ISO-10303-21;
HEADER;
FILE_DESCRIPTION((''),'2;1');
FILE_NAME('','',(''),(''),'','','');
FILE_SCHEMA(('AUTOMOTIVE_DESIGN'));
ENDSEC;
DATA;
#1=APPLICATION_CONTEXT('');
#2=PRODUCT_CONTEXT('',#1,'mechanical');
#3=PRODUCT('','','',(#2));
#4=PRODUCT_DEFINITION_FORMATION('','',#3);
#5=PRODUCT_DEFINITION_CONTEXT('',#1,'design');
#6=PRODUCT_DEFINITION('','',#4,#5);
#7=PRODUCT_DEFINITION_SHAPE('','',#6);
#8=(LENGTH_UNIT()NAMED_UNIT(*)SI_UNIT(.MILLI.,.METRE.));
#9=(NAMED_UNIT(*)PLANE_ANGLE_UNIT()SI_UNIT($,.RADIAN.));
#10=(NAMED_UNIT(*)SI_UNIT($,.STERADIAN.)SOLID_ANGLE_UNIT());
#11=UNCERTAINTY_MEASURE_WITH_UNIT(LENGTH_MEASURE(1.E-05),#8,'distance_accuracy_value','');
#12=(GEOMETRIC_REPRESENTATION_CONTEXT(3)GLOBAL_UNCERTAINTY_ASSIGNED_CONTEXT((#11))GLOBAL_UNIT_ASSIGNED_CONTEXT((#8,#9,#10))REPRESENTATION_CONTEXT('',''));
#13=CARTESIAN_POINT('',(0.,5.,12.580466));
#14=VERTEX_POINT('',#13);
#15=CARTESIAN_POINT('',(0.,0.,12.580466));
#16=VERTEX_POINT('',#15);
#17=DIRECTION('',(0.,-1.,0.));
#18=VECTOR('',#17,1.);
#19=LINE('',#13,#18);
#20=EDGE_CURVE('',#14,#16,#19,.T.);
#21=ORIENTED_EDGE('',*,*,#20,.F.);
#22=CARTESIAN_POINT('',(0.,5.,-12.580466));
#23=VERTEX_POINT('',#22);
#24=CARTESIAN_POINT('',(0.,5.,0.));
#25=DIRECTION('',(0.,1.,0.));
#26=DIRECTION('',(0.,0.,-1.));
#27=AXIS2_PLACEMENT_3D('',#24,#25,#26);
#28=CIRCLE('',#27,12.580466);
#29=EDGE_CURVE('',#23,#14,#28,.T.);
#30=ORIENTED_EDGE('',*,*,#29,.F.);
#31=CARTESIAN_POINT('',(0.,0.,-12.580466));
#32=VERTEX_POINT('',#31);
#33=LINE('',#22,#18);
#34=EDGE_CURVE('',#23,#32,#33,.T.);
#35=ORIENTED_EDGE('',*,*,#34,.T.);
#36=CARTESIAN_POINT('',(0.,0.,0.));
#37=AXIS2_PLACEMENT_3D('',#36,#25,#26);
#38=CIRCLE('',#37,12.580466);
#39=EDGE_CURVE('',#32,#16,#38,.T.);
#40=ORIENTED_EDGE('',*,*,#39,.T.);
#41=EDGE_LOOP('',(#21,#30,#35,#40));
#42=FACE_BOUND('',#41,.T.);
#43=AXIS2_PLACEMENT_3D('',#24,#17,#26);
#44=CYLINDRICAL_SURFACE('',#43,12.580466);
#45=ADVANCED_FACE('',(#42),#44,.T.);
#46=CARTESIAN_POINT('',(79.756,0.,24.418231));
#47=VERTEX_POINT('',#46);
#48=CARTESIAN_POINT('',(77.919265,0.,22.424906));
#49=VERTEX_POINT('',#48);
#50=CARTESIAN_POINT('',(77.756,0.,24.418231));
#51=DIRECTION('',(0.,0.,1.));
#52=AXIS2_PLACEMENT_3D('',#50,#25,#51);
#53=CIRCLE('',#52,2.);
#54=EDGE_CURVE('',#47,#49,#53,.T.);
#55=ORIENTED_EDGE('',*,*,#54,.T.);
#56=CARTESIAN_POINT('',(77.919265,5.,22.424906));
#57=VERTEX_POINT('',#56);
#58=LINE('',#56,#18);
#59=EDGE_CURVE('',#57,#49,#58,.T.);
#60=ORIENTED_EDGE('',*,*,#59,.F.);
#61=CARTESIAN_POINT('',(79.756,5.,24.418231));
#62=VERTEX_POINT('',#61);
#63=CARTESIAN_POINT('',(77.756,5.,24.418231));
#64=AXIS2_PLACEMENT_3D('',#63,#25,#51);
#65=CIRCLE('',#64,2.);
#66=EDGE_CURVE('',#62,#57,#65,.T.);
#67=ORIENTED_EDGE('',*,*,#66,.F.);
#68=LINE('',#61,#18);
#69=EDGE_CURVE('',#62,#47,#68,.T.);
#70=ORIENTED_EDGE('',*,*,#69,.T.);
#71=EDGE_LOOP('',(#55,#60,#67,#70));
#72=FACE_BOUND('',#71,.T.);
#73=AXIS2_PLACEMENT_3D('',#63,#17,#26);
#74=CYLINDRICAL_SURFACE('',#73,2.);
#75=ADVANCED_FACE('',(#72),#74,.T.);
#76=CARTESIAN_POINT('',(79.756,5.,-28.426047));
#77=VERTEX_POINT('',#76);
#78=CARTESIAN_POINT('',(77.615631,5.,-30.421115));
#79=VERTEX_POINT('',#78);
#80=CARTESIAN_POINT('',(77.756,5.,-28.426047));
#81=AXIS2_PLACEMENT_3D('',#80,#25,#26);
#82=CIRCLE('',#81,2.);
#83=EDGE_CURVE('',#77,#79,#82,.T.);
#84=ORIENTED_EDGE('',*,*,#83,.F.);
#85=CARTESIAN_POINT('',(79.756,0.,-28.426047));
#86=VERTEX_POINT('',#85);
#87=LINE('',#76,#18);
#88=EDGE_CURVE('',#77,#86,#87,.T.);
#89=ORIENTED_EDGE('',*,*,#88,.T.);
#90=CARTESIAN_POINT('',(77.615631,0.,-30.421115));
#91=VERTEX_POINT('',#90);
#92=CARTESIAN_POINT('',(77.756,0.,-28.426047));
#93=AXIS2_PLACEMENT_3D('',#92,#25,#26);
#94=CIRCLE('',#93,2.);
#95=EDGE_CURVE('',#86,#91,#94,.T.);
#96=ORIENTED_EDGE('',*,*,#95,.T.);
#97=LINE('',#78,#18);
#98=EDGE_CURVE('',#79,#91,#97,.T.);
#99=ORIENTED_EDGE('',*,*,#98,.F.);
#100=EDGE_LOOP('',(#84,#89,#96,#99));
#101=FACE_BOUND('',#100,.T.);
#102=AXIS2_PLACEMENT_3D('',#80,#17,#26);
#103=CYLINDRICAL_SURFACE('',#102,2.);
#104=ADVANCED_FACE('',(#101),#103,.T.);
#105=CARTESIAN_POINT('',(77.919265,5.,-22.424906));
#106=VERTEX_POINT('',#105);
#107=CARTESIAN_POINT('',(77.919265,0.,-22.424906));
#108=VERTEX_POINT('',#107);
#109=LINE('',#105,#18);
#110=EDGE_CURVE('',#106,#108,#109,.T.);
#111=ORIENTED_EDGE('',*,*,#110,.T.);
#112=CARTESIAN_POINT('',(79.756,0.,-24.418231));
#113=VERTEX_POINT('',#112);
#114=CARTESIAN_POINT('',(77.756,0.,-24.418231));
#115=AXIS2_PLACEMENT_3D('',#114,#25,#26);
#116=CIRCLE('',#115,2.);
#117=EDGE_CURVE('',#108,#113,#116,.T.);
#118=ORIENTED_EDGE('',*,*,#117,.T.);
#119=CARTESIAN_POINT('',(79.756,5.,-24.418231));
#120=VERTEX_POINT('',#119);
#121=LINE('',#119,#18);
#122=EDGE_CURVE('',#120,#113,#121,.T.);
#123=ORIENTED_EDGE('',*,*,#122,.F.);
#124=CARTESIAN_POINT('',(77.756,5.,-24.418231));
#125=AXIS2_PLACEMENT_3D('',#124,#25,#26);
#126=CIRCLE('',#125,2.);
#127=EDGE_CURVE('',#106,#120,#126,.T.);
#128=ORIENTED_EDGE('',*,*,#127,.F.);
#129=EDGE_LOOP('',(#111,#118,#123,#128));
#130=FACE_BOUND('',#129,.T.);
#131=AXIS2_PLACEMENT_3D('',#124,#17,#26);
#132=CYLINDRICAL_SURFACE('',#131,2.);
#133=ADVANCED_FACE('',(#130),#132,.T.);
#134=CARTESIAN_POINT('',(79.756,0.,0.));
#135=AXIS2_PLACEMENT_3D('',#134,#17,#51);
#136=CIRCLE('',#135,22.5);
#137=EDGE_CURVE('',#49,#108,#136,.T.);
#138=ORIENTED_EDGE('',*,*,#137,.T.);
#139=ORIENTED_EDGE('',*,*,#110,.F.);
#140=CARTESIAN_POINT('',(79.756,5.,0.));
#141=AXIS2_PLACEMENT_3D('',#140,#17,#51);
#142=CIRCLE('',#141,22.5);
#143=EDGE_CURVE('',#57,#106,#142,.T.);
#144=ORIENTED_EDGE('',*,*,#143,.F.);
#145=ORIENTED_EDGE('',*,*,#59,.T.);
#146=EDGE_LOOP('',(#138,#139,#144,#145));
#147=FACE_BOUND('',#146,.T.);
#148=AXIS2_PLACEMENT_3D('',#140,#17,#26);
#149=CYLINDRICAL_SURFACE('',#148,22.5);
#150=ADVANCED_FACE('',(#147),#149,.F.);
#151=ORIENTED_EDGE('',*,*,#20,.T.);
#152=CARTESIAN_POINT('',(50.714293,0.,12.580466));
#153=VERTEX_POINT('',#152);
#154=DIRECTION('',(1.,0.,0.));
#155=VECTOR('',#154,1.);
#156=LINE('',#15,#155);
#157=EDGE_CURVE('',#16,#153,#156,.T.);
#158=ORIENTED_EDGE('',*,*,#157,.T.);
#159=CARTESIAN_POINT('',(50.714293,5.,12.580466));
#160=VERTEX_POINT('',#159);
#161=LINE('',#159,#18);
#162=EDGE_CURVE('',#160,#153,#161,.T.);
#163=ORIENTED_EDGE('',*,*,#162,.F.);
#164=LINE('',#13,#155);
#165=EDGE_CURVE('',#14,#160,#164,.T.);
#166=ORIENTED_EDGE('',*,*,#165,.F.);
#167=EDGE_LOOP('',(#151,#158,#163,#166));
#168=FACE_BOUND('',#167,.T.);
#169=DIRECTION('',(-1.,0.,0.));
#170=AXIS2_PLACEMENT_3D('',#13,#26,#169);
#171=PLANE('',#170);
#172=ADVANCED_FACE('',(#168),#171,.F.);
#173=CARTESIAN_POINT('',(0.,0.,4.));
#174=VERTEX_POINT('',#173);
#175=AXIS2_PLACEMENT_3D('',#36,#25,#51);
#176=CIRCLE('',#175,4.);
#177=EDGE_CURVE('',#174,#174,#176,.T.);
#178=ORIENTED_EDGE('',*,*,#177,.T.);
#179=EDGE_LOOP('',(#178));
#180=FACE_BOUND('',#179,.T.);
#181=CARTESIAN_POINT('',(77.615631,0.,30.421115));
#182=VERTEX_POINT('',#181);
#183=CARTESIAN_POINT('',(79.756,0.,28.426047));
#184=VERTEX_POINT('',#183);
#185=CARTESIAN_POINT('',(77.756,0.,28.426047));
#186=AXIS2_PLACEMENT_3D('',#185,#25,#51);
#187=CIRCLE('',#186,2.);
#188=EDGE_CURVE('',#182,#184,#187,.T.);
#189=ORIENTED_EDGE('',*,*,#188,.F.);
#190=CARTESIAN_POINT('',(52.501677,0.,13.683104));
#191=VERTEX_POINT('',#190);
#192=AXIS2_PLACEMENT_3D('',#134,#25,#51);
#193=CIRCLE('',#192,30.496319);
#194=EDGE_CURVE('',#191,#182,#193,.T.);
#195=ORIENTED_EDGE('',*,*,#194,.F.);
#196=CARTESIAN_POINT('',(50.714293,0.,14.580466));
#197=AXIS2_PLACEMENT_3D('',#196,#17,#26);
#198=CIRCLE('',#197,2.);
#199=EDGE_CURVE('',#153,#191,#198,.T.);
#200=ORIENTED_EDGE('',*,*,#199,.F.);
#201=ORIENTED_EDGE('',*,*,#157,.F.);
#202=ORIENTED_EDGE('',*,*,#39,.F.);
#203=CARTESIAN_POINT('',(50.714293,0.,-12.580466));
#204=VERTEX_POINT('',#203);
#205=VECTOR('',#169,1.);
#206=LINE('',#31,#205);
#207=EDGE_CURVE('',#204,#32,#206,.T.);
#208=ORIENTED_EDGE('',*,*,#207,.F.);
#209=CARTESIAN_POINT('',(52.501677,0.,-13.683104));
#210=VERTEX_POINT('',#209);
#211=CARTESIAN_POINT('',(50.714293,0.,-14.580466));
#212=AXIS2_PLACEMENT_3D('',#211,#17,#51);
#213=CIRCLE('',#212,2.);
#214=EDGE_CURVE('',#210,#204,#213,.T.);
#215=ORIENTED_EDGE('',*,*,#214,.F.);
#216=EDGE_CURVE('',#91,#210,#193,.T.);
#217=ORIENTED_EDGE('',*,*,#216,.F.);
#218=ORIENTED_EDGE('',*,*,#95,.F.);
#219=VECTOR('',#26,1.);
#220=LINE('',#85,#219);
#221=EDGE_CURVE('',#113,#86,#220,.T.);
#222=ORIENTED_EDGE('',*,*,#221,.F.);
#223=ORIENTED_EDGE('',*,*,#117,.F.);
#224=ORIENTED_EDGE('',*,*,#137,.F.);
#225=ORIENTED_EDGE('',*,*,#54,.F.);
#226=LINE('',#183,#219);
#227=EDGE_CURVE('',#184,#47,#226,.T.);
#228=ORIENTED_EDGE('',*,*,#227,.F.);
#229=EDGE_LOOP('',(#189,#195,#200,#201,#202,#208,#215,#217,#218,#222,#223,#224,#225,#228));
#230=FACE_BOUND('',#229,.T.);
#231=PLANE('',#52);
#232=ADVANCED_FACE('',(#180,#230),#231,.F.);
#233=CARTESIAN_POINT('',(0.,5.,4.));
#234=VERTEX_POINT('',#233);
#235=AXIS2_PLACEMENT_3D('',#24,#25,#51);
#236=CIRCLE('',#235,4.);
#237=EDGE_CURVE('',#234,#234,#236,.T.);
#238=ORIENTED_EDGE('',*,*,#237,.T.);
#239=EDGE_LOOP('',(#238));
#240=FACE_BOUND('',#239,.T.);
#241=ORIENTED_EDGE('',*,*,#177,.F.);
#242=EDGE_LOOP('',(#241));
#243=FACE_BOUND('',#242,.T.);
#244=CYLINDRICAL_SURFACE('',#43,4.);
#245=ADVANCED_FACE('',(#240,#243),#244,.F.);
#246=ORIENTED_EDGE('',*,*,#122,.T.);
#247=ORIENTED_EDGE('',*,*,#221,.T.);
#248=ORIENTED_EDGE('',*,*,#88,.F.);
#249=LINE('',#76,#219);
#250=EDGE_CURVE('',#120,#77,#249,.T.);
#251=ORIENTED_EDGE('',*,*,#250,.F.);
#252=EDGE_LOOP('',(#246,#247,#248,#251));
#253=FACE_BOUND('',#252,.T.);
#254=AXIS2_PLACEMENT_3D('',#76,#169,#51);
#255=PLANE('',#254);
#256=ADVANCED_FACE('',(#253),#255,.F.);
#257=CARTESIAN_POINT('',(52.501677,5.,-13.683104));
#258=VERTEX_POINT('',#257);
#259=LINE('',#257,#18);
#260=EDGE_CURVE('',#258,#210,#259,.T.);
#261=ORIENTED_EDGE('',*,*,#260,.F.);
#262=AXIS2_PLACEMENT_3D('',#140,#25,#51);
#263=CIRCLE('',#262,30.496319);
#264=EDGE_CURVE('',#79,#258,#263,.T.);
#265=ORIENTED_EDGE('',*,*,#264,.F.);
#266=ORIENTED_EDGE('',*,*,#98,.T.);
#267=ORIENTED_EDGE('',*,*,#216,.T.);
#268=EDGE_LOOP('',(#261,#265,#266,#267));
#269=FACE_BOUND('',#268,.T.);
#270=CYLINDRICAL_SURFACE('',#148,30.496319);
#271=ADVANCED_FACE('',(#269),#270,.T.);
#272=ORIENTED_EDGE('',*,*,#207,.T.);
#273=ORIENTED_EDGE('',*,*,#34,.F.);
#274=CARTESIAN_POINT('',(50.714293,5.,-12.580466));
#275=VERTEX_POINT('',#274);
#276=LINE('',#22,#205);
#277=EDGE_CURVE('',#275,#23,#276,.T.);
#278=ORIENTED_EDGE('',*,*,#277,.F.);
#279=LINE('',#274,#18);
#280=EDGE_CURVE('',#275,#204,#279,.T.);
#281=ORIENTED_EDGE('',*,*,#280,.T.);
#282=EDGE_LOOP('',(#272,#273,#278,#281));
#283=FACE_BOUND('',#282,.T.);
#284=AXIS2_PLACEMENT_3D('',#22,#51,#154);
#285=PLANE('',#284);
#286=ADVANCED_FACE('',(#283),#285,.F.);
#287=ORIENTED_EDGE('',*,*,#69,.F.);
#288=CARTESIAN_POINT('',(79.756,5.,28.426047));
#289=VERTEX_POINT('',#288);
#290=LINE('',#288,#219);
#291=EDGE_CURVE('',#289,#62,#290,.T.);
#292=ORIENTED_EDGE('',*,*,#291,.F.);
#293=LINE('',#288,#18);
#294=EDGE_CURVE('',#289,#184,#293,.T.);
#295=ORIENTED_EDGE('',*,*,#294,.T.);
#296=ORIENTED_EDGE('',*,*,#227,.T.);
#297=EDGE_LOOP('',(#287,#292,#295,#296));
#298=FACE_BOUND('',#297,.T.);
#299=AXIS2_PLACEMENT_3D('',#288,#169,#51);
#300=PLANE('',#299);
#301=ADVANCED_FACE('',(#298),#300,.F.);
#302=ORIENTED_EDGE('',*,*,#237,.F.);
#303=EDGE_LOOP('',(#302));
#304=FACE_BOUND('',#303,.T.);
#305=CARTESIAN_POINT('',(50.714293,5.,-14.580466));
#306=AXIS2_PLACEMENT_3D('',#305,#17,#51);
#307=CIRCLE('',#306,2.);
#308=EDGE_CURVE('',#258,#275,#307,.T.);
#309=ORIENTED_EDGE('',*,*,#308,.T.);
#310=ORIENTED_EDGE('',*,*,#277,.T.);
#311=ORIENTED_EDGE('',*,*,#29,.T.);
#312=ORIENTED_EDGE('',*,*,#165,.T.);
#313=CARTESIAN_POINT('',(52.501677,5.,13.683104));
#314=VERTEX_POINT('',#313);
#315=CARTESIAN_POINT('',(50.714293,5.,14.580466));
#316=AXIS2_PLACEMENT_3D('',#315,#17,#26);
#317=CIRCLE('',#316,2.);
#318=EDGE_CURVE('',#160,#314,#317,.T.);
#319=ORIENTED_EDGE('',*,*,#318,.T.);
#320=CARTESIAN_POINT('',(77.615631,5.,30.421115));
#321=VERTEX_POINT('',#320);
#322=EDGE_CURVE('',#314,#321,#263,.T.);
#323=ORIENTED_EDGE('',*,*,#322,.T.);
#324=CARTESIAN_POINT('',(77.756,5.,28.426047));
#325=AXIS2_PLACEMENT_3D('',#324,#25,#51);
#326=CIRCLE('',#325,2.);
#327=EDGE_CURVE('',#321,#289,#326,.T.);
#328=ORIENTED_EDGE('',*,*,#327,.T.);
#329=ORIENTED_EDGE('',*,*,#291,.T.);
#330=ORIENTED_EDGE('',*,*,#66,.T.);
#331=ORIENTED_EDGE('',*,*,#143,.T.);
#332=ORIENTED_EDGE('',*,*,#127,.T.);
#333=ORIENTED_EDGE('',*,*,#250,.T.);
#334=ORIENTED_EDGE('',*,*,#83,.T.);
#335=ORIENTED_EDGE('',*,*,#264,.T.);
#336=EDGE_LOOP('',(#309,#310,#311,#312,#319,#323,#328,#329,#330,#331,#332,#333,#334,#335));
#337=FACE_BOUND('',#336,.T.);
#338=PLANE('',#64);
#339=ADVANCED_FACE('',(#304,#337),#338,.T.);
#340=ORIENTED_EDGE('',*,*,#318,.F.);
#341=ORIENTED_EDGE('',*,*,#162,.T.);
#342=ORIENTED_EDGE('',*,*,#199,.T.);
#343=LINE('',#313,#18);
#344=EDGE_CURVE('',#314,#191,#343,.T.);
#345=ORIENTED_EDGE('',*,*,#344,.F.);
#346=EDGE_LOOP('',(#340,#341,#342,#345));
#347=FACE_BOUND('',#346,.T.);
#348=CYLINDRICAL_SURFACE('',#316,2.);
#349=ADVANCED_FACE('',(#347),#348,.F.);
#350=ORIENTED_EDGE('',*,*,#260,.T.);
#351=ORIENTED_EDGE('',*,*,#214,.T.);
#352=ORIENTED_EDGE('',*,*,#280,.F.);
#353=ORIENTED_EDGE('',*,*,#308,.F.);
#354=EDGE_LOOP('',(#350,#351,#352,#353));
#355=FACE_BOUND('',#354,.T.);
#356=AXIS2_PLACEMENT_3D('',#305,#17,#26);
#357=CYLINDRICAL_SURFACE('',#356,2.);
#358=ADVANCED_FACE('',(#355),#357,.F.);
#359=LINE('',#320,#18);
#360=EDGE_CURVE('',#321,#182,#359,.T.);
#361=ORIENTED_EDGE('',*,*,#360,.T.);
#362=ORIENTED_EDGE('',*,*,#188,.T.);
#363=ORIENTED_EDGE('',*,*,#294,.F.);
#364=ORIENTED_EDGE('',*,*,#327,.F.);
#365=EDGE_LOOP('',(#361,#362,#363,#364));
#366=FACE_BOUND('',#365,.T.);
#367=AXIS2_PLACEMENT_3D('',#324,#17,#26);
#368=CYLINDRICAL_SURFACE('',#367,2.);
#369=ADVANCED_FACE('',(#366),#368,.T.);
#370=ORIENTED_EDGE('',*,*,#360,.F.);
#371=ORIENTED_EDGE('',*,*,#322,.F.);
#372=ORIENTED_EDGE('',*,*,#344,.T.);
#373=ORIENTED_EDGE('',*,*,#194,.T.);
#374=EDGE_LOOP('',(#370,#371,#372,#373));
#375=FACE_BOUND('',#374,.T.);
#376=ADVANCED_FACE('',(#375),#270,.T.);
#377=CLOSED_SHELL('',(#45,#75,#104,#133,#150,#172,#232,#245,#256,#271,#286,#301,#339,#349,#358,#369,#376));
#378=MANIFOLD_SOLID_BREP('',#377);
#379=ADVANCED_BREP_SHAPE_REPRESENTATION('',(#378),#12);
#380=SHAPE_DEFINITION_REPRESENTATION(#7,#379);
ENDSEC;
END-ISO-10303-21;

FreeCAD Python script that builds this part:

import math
import FreeCAD as App
import Part
import Sketcher
from FreeCAD import Vector
Q = App.Units.Quantity

doc = App.newDocument("Part")
body = doc.addObject("PartDesign::Body", "Body")

sketch1 = doc.addObject("Sketcher::SketchObject", "Sketch")
body.addObject(sketch1)
sketch1.AttachmentSupport = (doc.XZ_Plane, [""])
sketch1.MapMode = "FlatFace"
sketch1.addGeometry(Part.LineSegment(Vector(50.714293, -12.580466, 0), Vector(0, -12.580466, 0)), False)
sketch1.addGeometry(Part.ArcOfCircle(Part.Circle(Vector(0, 0, 0), Vector(0, 0, 1), 12.580466), math.radians(90), math.radians(270)), False)
sketch1.addGeometry(Part.LineSegment(Vector(0, 12.580466, 0), Vector(50.714293, 12.580466, 0)), False)
sketch1.addGeometry(Part.ArcOfCircle(Part.Circle(Vector(50.714293, 14.580466, 0), Vector(0, 0, 1), 2), math.radians(-90), math.radians(-26.65906)), False)
sketch1.addGeometry(Part.ArcOfCircle(Part.Circle(Vector(79.756, 0, 0), Vector(0, 0, 1), 30.496319), math.radians(94.024585), math.radians(153.34094)), False)
sketch1.addGeometry(Part.ArcOfCircle(Part.Circle(Vector(77.756, 28.426047, 0), Vector(0, 0, 1), 2), math.radians(0), math.radians(94.024585)), False)
sketch1.addGeometry(Part.LineSegment(Vector(79.756, 28.426047, 0), Vector(79.756, 24.418231, 0)), False)
sketch1.addGeometry(Part.ArcOfCircle(Part.Circle(Vector(77.756, 24.418231, 0), Vector(0, 0, 1), 2), math.radians(-85.317583), math.radians(0)), False)
sketch1.addGeometry(Part.ArcOfCircle(Part.Circle(Vector(79.756, 0, 0), Vector(0, 0, 1), 22.5), math.radians(94.682417), math.radians(265.317583)), False)
sketch1.addGeometry(Part.ArcOfCircle(Part.Circle(Vector(77.756, -24.418231, 0), Vector(0, 0, 1), 2), math.radians(0), math.radians(85.317583)), False)
sketch1.addGeometry(Part.LineSegment(Vector(79.756, -24.418231, 0), Vector(79.756, -28.426047, 0)), False)
sketch1.addGeometry(Part.ArcOfCircle(Part.Circle(Vector(77.756, -28.426047, 0), Vector(0, 0, 1), 2), math.radians(-94.024585), math.radians(0)), False)
sketch1.addGeometry(Part.ArcOfCircle(Part.Circle(Vector(79.756, 0, 0), Vector(0, 0, 1), 30.496319), math.radians(-153.34094), math.radians(-94.024585)), False)
sketch1.addGeometry(Part.ArcOfCircle(Part.Circle(Vector(50.714293, -14.580466, 0), Vector(0, 0, 1), 2), math.radians(26.65906), math.radians(90)), False)
sketch1.addGeometry(Part.Circle(Vector(0, 0, 0), Vector(0, 0, 1), 4), False)
sketch1.addConstraint(Sketcher.Constraint("Tangent", 0, 2, 1, 2))
sketch1.addConstraint(Sketcher.Constraint("Tangent", 1, 1, 2, 1))
sketch1.addConstraint(Sketcher.Constraint("Tangent", 2, 2, 3, 1))
sketch1.addConstraint(Sketcher.Constraint("Tangent", 3, 2, 4, 2))
sketch1.addConstraint(Sketcher.Constraint("Tangent", 4, 1, 5, 2))
sketch1.addConstraint(Sketcher.Constraint("Tangent", 5, 1, 6, 1))
sketch1.addConstraint(Sketcher.Constraint("Tangent", 6, 2, 7, 2))
sketch1.addConstraint(Sketcher.Constraint("Tangent", 7, 1, 8, 1))
sketch1.addConstraint(Sketcher.Constraint("Tangent", 8, 2, 9, 2))
sketch1.addConstraint(Sketcher.Constraint("Tangent", 9, 1, 10, 1))
sketch1.addConstraint(Sketcher.Constraint("Tangent", 10, 2, 11, 2))
sketch1.addConstraint(Sketcher.Constraint("Tangent", 11, 1, 12, 2))
sketch1.addConstraint(Sketcher.Constraint("Tangent", 12, 1, 13, 1))
sketch1.addConstraint(Sketcher.Constraint("Tangent", 13, 2, 0, 1))
sketch1.addConstraint(Sketcher.Constraint("Horizontal", 0))
sketch1.addConstraint(Sketcher.Constraint("Horizontal", 2))
sketch1.addConstraint(Sketcher.Constraint("Vertical", 6))
sketch1.addConstraint(Sketcher.Constraint("Vertical", 10))
sketch1.addConstraint(Sketcher.Constraint("Coincident", 1, 3, -1, 1))
sketch1.addConstraint(Sketcher.Constraint("Coincident", 14, 3, -1, 1))
sketch1.addConstraint(Sketcher.Constraint("Coincident", 8, 3, 4, 3))
sketch1.addConstraint(Sketcher.Constraint("Coincident", 12, 3, 4, 3))
sketch1.addConstraint(Sketcher.Constraint("Equal", 3, 5))
sketch1.addConstraint(Sketcher.Constraint("Equal", 5, 7))
sketch1.addConstraint(Sketcher.Constraint("Equal", 7, 9))
sketch1.addConstraint(Sketcher.Constraint("Equal", 9, 11))
sketch1.addConstraint(Sketcher.Constraint("Equal", 4, 12))
sketch1.addConstraint(Sketcher.Constraint("Equal", 11, 13))
sketch1.addConstraint(Sketcher.Constraint("Symmetric", 7, 3, 9, 3, -1))
sketch1.addConstraint(Sketcher.Constraint("Vertical", 12, 3, 5, 1))
sketch1.addConstraint(Sketcher.Constraint("Diameter", 14, Q("8 mm")))
sketch1.addConstraint(Sketcher.Constraint("Radius", 3, Q("2 mm")))
sketch1.addConstraint(Sketcher.Constraint("Radius", 8, Q("22.5 mm")))
sketch1.addConstraint(Sketcher.Constraint("Radius", 4, Q("30.496319 mm")))
sketch1.addConstraint(Sketcher.Constraint("DistanceX", -1, 1, 4, 3, Q("79.756 mm")))
sketch1.addConstraint(Sketcher.Constraint("Radius", 1, Q("12.580466 mm")))
pad1 = doc.addObject("PartDesign::Pad", "Pad")
body.addObject(pad1)
pad1.Profile = sketch1
pad1.Length = 5
pad1.Reversed = True

doc.recompute()
